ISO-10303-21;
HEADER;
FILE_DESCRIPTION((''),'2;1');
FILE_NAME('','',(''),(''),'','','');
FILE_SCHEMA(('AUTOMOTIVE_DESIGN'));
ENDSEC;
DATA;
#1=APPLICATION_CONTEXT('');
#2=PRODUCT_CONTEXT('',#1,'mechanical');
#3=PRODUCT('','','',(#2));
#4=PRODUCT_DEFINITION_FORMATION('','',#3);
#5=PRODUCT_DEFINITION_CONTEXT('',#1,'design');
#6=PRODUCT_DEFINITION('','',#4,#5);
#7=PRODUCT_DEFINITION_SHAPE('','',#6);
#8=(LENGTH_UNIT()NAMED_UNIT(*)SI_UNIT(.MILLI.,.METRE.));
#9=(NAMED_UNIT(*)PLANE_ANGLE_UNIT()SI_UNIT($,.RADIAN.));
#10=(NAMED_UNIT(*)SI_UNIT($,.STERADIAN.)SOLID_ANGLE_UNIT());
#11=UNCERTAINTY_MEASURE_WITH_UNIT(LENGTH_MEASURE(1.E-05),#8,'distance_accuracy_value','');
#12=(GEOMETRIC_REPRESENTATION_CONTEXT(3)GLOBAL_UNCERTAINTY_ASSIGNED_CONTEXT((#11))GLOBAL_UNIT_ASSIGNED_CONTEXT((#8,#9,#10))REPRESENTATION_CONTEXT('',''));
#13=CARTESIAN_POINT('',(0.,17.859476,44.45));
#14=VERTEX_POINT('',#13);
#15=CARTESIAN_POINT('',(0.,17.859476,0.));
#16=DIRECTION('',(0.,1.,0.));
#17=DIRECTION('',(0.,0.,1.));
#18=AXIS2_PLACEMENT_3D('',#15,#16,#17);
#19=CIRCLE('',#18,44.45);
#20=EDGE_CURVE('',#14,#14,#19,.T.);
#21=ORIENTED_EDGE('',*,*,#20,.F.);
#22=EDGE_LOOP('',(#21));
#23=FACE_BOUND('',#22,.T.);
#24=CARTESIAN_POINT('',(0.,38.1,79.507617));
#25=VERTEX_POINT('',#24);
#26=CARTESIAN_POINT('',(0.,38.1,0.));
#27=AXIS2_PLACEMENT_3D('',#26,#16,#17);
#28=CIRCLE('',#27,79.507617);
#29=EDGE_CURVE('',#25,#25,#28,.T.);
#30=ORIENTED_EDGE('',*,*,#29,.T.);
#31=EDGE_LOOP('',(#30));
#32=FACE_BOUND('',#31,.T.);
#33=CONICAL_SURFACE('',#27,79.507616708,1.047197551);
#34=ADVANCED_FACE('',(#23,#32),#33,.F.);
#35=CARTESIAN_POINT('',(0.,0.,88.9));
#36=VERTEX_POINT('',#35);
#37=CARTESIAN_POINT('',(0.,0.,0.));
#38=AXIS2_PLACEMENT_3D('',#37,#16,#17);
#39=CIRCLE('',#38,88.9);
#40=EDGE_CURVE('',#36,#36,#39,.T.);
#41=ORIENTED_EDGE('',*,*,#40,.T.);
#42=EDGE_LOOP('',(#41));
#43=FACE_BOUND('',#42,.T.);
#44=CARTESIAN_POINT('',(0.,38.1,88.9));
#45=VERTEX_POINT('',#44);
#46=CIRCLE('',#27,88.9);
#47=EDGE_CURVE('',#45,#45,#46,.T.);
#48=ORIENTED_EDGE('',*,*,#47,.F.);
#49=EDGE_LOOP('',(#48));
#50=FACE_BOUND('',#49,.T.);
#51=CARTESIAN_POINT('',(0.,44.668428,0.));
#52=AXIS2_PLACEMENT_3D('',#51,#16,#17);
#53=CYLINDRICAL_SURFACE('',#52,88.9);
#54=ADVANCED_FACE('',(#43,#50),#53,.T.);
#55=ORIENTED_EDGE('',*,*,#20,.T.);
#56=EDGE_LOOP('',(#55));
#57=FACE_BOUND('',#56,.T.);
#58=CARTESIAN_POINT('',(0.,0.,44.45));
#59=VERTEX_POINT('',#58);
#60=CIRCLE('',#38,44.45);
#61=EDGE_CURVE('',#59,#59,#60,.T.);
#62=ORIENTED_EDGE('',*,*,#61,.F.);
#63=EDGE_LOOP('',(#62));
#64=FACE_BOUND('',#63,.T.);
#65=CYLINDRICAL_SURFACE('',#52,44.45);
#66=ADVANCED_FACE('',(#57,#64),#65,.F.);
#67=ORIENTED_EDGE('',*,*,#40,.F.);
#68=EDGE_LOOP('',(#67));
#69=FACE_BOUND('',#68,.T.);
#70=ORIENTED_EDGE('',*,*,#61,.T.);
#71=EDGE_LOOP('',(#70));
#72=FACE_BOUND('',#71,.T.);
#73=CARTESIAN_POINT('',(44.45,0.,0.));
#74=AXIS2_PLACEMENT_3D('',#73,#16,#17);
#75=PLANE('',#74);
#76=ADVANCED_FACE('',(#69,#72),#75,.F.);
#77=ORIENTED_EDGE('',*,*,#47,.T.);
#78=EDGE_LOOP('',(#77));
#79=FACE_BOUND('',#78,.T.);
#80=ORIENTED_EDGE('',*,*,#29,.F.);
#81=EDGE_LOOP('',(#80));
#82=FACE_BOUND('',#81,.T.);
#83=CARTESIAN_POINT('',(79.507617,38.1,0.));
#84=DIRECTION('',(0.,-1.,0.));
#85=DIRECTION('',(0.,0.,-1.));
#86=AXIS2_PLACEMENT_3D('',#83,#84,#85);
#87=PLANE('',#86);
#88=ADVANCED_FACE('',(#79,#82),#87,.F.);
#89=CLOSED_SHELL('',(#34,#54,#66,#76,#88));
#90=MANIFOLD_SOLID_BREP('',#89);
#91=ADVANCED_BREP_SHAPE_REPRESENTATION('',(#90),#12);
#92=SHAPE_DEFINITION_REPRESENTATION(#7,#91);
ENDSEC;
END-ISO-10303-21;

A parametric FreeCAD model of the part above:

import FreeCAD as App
import Part
import Sketcher

V = App.Vector
Q = App.Units.Quantity


def add_polygon(sketch, points):
    """Adds a closed chain of lines whose ends are joined by coincident constraints."""
    first, n = sketch.GeometryCount, len(points)
    for a, b in zip(points, points[1:] + points[:1]):
        sketch.addGeometry(Part.LineSegment(App.Vector(*a, 0), App.Vector(*b, 0)), False)
    for i in range(n):
        sketch.addConstraint(Sketcher.Constraint("Coincident", first + i, 2, first + (i + 1) % n, 1))

doc = App.newDocument("Part")
body = doc.addObject("PartDesign::Body", "Body")

# Sketch on XY plane
sketch1 = body.newObject("Sketcher::SketchObject", "Sketch")
sketch1.AttachmentSupport = (doc.getObject("XY_Plane"), [""])
sketch1.MapMode = "FlatFace"
add_polygon(sketch1, [(89, 38), (80, 38), (44, 18), (44, 0), (89, 0)])  # lines 0-4
sketch1.addConstraint([
    Sketcher.Constraint("Horizontal", 0),
    Sketcher.Constraint("Vertical", 2),
    Sketcher.Constraint("Horizontal", 3),
    Sketcher.Constraint("Vertical", 4),
    Sketcher.Constraint("PointOnObject", 2, 2, -1),
    Sketcher.Constraint("DistanceY", 4, 1, 4, 2, Q("1.5 in")),
    Sketcher.Constraint("Angle", 1, Q("-150 deg")),
    Sketcher.Constraint("DistanceX", 3, 1, 3, 2, Q("1.75 in")),
    Sketcher.Constraint("DistanceX", -1, 1, 3, 2, Q("3.5 in")),
    Sketcher.Constraint("Distance", 1, Q("40.481049 mm")),
])
revolution = body.newObject("PartDesign::Revolution", "Revolution")
revolution.Profile = sketch1
revolution.ReferenceAxis = (sketch1, ["V_Axis"])
revolution.Angle = 360

doc.recompute()
